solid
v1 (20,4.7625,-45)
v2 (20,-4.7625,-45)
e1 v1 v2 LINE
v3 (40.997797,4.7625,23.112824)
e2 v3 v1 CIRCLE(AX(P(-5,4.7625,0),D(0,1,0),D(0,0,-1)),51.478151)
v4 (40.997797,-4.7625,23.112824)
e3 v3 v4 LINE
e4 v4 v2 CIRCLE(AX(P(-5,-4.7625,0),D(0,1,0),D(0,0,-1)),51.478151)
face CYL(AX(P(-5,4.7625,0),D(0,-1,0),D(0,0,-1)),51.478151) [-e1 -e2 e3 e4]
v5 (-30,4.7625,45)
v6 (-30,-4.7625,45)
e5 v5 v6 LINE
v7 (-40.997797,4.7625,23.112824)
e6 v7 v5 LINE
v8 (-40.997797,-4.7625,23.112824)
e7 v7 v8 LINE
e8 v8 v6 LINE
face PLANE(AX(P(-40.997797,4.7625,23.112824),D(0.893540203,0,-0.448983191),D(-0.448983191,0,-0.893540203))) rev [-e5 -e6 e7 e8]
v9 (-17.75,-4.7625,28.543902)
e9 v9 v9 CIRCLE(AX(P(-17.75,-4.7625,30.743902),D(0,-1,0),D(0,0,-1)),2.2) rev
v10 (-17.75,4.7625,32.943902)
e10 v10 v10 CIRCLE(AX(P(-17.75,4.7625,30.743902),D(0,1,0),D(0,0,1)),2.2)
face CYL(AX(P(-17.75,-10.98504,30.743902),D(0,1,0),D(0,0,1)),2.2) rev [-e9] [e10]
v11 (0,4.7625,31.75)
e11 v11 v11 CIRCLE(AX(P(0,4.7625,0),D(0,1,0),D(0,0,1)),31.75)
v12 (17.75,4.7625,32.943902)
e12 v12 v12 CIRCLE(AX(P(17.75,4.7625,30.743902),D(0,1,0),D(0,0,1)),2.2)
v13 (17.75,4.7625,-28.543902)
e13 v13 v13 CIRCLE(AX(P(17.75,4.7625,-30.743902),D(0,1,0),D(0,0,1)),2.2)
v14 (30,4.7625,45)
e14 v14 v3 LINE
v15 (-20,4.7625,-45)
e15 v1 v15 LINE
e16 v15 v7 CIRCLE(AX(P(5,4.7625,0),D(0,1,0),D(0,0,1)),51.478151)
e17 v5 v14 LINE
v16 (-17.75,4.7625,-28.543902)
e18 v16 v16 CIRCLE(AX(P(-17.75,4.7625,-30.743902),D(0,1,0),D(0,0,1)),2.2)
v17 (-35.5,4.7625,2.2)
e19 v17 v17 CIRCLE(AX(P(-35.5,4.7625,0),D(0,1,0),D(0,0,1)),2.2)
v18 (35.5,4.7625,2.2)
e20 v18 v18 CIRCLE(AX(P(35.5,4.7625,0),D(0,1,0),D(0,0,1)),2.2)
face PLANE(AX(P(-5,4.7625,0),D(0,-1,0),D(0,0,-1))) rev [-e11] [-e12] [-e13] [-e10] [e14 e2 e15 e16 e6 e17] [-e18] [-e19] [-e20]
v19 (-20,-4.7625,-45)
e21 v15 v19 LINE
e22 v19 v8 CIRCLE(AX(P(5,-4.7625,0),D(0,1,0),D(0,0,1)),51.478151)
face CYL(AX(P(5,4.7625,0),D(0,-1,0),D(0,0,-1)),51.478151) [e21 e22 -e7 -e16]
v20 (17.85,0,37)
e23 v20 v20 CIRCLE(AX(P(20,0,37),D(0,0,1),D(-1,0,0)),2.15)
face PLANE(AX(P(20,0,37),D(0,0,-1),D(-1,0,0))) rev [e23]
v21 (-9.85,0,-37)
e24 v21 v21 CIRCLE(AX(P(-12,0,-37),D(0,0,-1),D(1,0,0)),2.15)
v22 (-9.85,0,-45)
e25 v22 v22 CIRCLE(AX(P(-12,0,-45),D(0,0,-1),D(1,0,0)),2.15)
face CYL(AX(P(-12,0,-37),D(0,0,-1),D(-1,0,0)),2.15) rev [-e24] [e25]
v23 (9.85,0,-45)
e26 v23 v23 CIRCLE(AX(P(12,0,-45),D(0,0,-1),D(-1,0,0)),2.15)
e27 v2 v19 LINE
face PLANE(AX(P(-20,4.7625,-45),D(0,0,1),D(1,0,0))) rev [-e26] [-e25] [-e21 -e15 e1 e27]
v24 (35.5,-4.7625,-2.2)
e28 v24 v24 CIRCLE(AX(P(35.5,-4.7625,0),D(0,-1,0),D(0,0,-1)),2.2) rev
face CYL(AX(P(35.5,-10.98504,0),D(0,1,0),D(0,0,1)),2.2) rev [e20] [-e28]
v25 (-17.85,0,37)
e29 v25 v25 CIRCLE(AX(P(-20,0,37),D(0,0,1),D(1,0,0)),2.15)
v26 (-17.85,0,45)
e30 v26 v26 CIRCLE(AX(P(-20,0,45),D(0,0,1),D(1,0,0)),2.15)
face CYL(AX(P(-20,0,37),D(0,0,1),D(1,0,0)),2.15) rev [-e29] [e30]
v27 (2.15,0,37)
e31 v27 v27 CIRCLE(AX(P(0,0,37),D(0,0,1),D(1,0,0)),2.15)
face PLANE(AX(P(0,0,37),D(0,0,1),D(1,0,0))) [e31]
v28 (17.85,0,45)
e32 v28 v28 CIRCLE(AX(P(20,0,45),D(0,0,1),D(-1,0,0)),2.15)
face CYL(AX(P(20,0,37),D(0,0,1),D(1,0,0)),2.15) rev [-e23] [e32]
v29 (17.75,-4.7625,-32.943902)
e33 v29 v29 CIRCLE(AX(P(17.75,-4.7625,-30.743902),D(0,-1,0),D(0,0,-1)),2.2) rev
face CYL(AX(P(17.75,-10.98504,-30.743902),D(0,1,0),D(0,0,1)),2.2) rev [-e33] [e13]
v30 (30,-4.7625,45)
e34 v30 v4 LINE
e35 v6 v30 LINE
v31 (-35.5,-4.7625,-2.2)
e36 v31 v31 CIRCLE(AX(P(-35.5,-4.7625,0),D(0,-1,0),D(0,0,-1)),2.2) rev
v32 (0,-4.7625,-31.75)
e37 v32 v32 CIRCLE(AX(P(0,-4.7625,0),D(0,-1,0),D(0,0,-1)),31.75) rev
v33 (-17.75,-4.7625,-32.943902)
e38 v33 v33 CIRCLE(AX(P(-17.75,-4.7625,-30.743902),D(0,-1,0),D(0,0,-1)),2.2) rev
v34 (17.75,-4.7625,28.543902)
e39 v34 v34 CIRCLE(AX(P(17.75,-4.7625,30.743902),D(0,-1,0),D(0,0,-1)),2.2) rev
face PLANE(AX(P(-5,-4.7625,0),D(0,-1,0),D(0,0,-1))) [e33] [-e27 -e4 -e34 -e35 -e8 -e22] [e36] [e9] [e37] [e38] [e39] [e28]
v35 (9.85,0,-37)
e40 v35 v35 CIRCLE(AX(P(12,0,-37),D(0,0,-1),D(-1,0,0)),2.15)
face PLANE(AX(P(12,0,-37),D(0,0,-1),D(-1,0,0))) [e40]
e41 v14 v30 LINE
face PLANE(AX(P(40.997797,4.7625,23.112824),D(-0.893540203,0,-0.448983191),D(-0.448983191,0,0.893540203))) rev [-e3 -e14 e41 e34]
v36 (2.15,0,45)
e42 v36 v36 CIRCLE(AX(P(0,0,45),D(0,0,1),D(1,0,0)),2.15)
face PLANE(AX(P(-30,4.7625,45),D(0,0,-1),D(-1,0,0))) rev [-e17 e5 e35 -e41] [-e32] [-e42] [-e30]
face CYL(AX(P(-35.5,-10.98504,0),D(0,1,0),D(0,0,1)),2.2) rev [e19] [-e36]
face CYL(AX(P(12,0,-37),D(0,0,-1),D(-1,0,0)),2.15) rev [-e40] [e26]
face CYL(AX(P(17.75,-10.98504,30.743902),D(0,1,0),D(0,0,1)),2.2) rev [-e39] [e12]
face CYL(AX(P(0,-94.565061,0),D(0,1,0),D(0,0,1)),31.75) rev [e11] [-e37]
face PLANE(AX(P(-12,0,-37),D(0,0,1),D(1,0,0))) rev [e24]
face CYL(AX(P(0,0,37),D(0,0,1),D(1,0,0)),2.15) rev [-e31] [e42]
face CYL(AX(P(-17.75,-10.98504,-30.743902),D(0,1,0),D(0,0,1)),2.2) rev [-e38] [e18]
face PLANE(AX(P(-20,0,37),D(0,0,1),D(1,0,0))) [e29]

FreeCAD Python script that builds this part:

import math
import FreeCAD as App
import Part
import Sketcher

doc = App.newDocument("Part")
body = doc.addObject("PartDesign::Body", "Body")

# Sketch on XZ plane
sketch1 = body.newObject("Sketcher::SketchObject", "Sketch")
sketch1.AttachmentSupport = (doc.getObject("XZ_Plane"), [""])
sketch1.MapMode = "FlatFace"
sketch1.addGeometry([
    Part.LineSegment(App.Vector(-30, 45, 0), App.Vector(30, 45, 0)),  # 0
    Part.LineSegment(App.Vector(30, 45, 0), App.Vector(41, 23, 0)),  # 1
    Part.ArcOfCircle(Part.Circle(App.Vector(-5, 0, 0), App.Vector(0, 0, 1), 51), math.radians(-61), math.radians(27)),  # 2
    Part.LineSegment(App.Vector(20, -45, 0), App.Vector(-20, -45, 0)),  # 3
    Part.ArcOfCircle(Part.Circle(App.Vector(5, 0, 0), App.Vector(0, 0, 1), 51), math.radians(153), math.radians(241)),  # 4
    Part.LineSegment(App.Vector(-41, 23, 0), App.Vector(-30, 45, 0)),  # 5
], False)
sketch1.addConstraint([
    Sketcher.Constraint("Coincident", 0, 2, 1, 1),
    Sketcher.Constraint("Tangent", 1, 2, 2, 2),
    Sketcher.Constraint("Coincident", 2, 1, 3, 1),
    Sketcher.Constraint("Coincident", 3, 2, 4, 2),
    Sketcher.Constraint("Tangent", 4, 1, 5, 1),
    Sketcher.Constraint("Coincident", 5, 2, 0, 1),
    Sketcher.Constraint("Horizontal", 0),
    Sketcher.Constraint("Horizontal", 3),
    Sketcher.Constraint("Equal", 2, 4),
    Sketcher.Constraint("Symmetric", 2, 3, 4, 3, -1, 1),
    Sketcher.Constraint("Symmetric", 1, 2, 4, 1, -2),
    Sketcher.Constraint("DistanceX", 0, 1, 0, 2, 60.0),
    Sketcher.Constraint("DistanceX", 3, 2, 3, 1, 40.0),
    Sketcher.Constraint("DistanceX", 2, 3, -1, 1, 5.0),
    Sketcher.Constraint("DistanceY", -1, 1, 0, 2, 45.0),
    Sketcher.Constraint("DistanceY", 2, 1, -1, 1, 45.0),
])
pad1 = body.newObject("PartDesign::Pad", "Pad")
pad1.Profile = sketch1
pad1.Length = 9.525
pad1.Midplane = True

# Sketch on XZ plane
sketch2 = body.newObject("Sketcher::SketchObject", "Sketch001")
sketch2.AttachmentSupport = (doc.getObject("XZ_Plane"), [""])
sketch2.MapMode = "FlatFace"
sketch2.AttachmentOffset = App.Placement(App.Vector(0, 0, -4.7625), App.Rotation())
sketch2.addGeometry(Part.Circle(App.Vector(0, 0, 0), App.Vector(0, 0, 1), 32), False)
sketch2.addConstraint([
    Sketcher.Constraint("Coincident", 0, 3, -1, 1),
    Sketcher.Constraint("Diameter", 0, 63.5),
])
pocket1 = body.newObject("PartDesign::Pocket", "Pocket")
pocket1.Profile = sketch2
pocket1.Length = 9.525
pocket1.Reversed = True

# Sketch on XZ plane
sketch3 = body.newObject("Sketcher::SketchObject", "Sketch002")
sketch3.AttachmentSupport = (doc.getObject("XZ_Plane"), [""])
sketch3.MapMode = "FlatFace"
sketch3.AttachmentOffset = App.Placement(App.Vector(0, 0, -4.7625), App.Rotation())
sketch3.addGeometry([
    Part.Circle(App.Vector(17.8, -30.7, 0), App.Vector(0, 0, 1), 2.2),  # 0
    Part.Circle(App.Vector(35.5, 0, 0), App.Vector(0, 0, 1), 2.2),  # 1
    Part.Circle(App.Vector(17.8, 30.7, 0), App.Vector(0, 0, 1), 2.2),  # 2
    Part.Circle(App.Vector(-17.8, 30.7, 0), App.Vector(0, 0, 1), 2.2),  # 3
    Part.Circle(App.Vector(-35.5, 0, 0), App.Vector(0, 0, 1), 2.2),  # 4
    Part.Circle(App.Vector(-17.8, -30.7, 0), App.Vector(0, 0, 1), 2.2),  # 5
], False)
sketch3.addConstraint([
    Sketcher.Constraint("Equal", 0, 1),
    Sketcher.Constraint("Equal", 1, 2),
    Sketcher.Constraint("Equal", 2, 3),
    Sketcher.Constraint("Equal", 3, 4),
    Sketcher.Constraint("Equal", 4, 5),
    Sketcher.Constraint("Symmetric", 0, 3, 3, 3, -1, 1),
    Sketcher.Constraint("Symmetric", 1, 3, 4, 3, -1, 1),
    Sketcher.Constraint("Symmetric", 2, 3, 5, 3, -1, 1),
    Sketcher.Constraint("Symmetric", 2, 3, 3, 3, -2),
    Sketcher.Constraint("PointOnObject", 1, 3, -1),
    Sketcher.Constraint("Diameter", 0, 4.4),
    Sketcher.Constraint("DistanceX", 4, 3, 1, 3, 71.0),
    Sketcher.Constraint("DistanceX", 3, 3, 2, 3, 35.5),
    Sketcher.Constraint("DistanceY", 0, 3, -1, 1, 30.743902),
])
pocket2 = body.newObject("PartDesign::Pocket", "Pocket001")
pocket2.Profile = sketch3
pocket2.Length = 9.525
pocket2.Reversed = True

# Sketch on XY plane
sketch4 = body.newObject("Sketcher::SketchObject", "Sketch003")
sketch4.AttachmentSupport = (doc.getObject("XY_Plane"), [""])
sketch4.MapMode = "FlatFace"
sketch4.AttachmentOffset = App.Placement(App.Vector(0, 0, -45), App.Rotation())
sketch4.addGeometry([
    Part.Circle(App.Vector(12, 0, 0), App.Vector(0, 0, 1), 2.1),
    Part.Circle(App.Vector(-12, 0, 0), App.Vector(0, 0, 1), 2.1),
], False)
sketch4.addConstraint([
    Sketcher.Constraint("Equal", 0, 1),
    Sketcher.Constraint("Symmetric", 0, 3, 1, 3, -1, 1),
    Sketcher.Constraint("PointOnObject", 0, 3, -1),
    Sketcher.Constraint("Diameter", 0, 4.3),
    Sketcher.Constraint("DistanceX", -1, 1, 0, 3, 12.0),
])
pocket3 = body.newObject("PartDesign::Pocket", "Pocket002")
pocket3.Profile = sketch4
pocket3.Length = 8
pocket3.Reversed = True

# Sketch on XY plane
sketch5 = body.newObject("Sketcher::SketchObject", "Sketch004")
sketch5.AttachmentSupport = (doc.getObject("XY_Plane"), [""])
sketch5.MapMode = "FlatFace"
sketch5.AttachmentOffset = App.Placement(App.Vector(0, 0, 45), App.Rotation())
sketch5.addGeometry([
    Part.Circle(App.Vector(-20, 0, 0), App.Vector(0, 0, 1), 2.1),
    Part.Circle(App.Vector(20, 0, 0), App.Vector(0, 0, 1), 2.1),
    Part.Circle(App.Vector(0, 0, 0), App.Vector(0, 0, 1), 2.1),
], False)
sketch5.addConstraint([
    Sketcher.Constraint("Coincident", 2, 3, -1, 1),
    Sketcher.Constraint("Equal", 0, 1),
    Sketcher.Constraint("Equal", 1, 2),
    Sketcher.Constraint("Symmetric", 0, 3, 1, 3, -1, 1),
    Sketcher.Constraint("PointOnObject", 0, 3, -1),
    Sketcher.Constraint("Diameter", 0, 4.3),
    Sketcher.Constraint("DistanceX", 0, 3, -1, 1, 20.0),
])
pocket4 = body.newObject("PartDesign::Pocket", "Pocket003")
pocket4.Profile = sketch5
pocket4.Length = 8

doc.recompute()
